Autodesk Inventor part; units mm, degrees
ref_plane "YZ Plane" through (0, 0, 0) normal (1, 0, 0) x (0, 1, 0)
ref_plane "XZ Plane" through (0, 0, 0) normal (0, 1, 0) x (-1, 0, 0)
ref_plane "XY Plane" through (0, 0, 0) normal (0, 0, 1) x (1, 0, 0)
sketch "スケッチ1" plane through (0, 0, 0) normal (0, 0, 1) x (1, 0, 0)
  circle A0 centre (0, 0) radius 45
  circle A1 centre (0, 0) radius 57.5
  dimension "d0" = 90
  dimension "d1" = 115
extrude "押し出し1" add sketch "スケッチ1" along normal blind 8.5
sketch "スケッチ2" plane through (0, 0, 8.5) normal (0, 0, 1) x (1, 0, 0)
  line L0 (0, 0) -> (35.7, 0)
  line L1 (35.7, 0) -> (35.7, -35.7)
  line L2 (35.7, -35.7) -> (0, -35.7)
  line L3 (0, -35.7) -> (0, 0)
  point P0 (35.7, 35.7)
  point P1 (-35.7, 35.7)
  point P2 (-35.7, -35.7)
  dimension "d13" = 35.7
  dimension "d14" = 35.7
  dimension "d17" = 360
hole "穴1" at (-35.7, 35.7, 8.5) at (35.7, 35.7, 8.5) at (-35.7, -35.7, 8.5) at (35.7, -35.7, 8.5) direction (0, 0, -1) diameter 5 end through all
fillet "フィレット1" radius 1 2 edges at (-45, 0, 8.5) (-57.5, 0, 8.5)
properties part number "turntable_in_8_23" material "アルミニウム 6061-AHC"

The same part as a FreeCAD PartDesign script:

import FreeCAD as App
import Part
import Sketcher


def edges_at(feature, points):
    """Names of the edges that pass closest to the given points."""
    edges = feature.Shape.Edges
    near = lambda p: min(range(len(edges)), key=lambda i: edges[i].distToShape(Part.Vertex(*p))[0])
    return sorted({f"Edge{near(p) + 1}" for p in points})

doc = App.newDocument("Part")
params = doc.addObject("Spreadsheet::Sheet", "Params")
for row, (alias, value) in enumerate([
    ("sketch1_diameter", "115 mm"),
    ("sketch1_diameter2", "90 mm"),
    ("pad1_length", "8.5 mm"),
    ("sketch2_diameter", "5 mm"),
    ("hole_diameter", "5 mm"),
    ("fillet_radius", "1 mm"),
], start=1):
    params.set(f"A{row}", alias)
    params.set(f"B{row}", "=" + value)
    params.setAlias(f"B{row}", alias)

body = doc.addObject("PartDesign::Body", "Body")

# Sketch on XY plane
sketch1 = body.newObject("Sketcher::SketchObject", "Sketch")
sketch1.AttachmentSupport = (doc.getObject("XY_Plane"), [""])
sketch1.MapMode = "FlatFace"
sketch1.addGeometry(Part.Circle(App.Vector(0, 0, 0), App.Vector(0, 0, 1), 58), False)
sketch1.addGeometry(Part.Circle(App.Vector(0, 0, 0), App.Vector(0, 0, 1), 45), False)
sketch1.addConstraint(Sketcher.Constraint("Coincident", 0, 3, -1, 1))
sketch1.addConstraint(Sketcher.Constraint("Coincident", 1, 3, -1, 1))
sketch1.addConstraint(Sketcher.Constraint("Diameter", 0, 115.0))
sketch1.addConstraint(Sketcher.Constraint("Diameter", 1, 90.0))
sketch1.setExpression("Constraints[2]", "Params.sketch1_diameter")
sketch1.setExpression("Constraints[3]", "Params.sketch1_diameter2")
pad1 = body.newObject("PartDesign::Pad", "Pad")
pad1.Profile = sketch1
pad1.setExpression("Length", "Params.pad1_length")

# Sketch on XY plane
sketch2 = body.newObject("Sketcher::SketchObject", "Sketch001")
sketch2.AttachmentSupport = (doc.getObject("XY_Plane"), [""])
sketch2.MapMode = "FlatFace"
sketch2.AttachmentOffset = App.Placement(App.Vector(0, 0, 8.5), App.Rotation())
sketch2.addGeometry(Part.Circle(App.Vector(-35.7, 35.7, 0), App.Vector(0, 0, 1), 2.5), False)
sketch2.addGeometry(Part.Circle(App.Vector(35.7, 35.7, 0), App.Vector(0, 0, 1), 2.5), False)
sketch2.addGeometry(Part.Circle(App.Vector(-35.7, -35.7, 0), App.Vector(0, 0, 1), 2.5), False)
sketch2.addGeometry(Part.Circle(App.Vector(35.7, -35.7, 0), App.Vector(0, 0, 1), 2.5), False)
sketch2.addConstraint(Sketcher.Constraint("Equal", 0, 1))
sketch2.addConstraint(Sketcher.Constraint("Equal", 1, 2))
sketch2.addConstraint(Sketcher.Constraint("Equal", 2, 3))
sketch2.addConstraint(Sketcher.Constraint("Symmetric", 1, 3, 2, 3, -1, 1))
sketch2.addConstraint(Sketcher.Constraint("Symmetric", 0, 3, 3, 3, -1, 1))
sketch2.addConstraint(Sketcher.Constraint("Symmetric", 0, 3, 1, 3, -2))
sketch2.addConstraint(Sketcher.Constraint("Diameter", 0, 5.0))
sketch2.addConstraint(Sketcher.Constraint("DistanceX", 0, 3, -1, 1, 35.7))
sketch2.addConstraint(Sketcher.Constraint("DistanceY", -1, 1, 0, 3, 35.7))
sketch2.setExpression("Constraints[6]", "Params.sketch2_diameter")
doc.recompute()
hole = body.newObject("PartDesign::Hole", "Hole")
hole.Profile = sketch2
hole.ThreadType = "None"
hole.setExpression("Diameter", "Params.hole_diameter")
hole.DepthType = "ThroughAll"
doc.recompute()

fillet = body.newObject("PartDesign::Fillet", "Fillet")
fillet.Base = (hole, edges_at(hole, [(-45, 0, 8.5), (-57.5, 0, 8.5)]))
fillet.setExpression("Radius", "Params.fillet_radius")

doc.recompute()
